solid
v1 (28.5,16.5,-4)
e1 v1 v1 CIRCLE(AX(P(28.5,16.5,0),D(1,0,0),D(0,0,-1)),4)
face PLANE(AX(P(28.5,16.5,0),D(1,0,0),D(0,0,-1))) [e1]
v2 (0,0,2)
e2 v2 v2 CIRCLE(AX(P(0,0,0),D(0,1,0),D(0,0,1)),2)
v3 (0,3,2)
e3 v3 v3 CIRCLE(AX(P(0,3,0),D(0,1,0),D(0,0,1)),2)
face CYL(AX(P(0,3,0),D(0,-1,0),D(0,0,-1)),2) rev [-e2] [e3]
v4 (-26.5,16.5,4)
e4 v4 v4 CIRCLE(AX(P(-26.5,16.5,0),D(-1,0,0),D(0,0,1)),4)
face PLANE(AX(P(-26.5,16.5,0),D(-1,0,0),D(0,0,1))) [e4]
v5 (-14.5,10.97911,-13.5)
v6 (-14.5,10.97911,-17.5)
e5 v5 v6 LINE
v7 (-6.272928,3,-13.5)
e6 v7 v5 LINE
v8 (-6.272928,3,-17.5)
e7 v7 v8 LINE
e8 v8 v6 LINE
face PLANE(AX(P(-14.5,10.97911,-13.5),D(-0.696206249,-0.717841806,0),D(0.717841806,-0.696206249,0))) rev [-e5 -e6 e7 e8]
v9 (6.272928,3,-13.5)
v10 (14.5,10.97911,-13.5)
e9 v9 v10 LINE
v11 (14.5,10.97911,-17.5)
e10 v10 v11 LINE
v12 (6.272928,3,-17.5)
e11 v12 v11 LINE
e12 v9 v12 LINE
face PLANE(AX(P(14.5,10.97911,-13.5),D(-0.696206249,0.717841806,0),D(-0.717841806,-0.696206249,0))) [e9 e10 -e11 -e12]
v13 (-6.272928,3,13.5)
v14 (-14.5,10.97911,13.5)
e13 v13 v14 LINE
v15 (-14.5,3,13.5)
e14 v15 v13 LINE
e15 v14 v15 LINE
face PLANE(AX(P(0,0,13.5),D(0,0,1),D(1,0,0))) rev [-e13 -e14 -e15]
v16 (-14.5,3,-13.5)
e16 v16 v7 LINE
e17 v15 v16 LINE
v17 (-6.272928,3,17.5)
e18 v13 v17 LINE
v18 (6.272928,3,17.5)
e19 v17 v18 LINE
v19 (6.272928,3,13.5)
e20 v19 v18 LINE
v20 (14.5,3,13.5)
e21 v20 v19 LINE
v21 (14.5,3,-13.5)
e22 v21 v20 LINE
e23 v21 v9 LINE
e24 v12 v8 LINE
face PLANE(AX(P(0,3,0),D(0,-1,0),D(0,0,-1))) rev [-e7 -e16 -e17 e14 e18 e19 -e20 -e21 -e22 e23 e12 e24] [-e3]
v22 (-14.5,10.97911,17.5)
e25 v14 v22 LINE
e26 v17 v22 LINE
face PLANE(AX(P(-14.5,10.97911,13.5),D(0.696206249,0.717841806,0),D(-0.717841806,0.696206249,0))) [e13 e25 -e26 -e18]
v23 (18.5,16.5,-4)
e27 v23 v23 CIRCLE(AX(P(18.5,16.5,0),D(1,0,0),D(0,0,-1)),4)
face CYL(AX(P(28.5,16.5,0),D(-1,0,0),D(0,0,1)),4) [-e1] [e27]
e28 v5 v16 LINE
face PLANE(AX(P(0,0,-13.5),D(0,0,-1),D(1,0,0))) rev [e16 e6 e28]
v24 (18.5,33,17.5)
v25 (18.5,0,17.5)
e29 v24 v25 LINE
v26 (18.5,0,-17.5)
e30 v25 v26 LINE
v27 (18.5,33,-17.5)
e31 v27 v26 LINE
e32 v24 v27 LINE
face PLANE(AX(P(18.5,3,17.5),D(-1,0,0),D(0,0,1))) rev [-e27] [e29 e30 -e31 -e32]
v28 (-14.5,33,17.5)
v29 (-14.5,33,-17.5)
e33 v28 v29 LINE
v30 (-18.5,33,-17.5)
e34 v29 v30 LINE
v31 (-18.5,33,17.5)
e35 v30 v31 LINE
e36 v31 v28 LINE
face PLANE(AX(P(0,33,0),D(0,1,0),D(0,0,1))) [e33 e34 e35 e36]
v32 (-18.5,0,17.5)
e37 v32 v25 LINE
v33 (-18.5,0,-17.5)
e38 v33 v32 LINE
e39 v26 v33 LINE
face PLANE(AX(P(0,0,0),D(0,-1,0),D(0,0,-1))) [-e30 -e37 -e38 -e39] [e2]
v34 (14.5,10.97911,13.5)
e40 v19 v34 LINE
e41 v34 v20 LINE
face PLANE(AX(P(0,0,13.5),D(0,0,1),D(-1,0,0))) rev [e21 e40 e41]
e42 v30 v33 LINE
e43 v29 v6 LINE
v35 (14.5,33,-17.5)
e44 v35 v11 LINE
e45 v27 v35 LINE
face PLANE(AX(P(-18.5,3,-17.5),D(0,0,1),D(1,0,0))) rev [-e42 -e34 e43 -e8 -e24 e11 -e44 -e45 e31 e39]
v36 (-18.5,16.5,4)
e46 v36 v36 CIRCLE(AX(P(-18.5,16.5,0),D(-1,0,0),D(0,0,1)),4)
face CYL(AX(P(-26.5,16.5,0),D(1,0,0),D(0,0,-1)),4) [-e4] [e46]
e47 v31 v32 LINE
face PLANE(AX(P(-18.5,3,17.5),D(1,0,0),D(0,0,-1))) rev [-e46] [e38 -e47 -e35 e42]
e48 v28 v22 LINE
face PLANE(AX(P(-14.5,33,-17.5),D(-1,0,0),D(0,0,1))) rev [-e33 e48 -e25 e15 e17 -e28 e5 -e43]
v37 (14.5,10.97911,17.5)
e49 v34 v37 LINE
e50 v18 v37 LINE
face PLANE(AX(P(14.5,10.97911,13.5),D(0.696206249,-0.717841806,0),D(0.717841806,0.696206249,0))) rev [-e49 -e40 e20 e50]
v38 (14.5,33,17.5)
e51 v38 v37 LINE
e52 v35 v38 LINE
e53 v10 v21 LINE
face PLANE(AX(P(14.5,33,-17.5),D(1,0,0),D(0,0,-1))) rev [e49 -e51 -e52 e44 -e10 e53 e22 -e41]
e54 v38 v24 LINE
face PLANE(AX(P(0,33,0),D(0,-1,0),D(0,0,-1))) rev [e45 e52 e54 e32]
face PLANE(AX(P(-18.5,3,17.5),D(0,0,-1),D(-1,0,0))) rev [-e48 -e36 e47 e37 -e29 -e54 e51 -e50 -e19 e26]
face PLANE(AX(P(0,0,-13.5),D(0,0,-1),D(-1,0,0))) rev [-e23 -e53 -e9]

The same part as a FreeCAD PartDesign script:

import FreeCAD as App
import Part
import Sketcher
Q = App.Units.Quantity

doc = App.newDocument("Part")
body = doc.addObject("PartDesign::Body", "Body")

# Sketch on XZ plane
sketch1 = body.newObject("Sketcher::SketchObject", "Sketch")
sketch1.AttachmentSupport = (doc.getObject("XZ_Plane"), [""])
sketch1.MapMode = "FlatFace"
sketch1.addGeometry([
    Part.LineSegment(App.Vector(-18.5, -17.5, 0), App.Vector(-18.5, 17.5, 0)),  # 0
    Part.LineSegment(App.Vector(-18.5, 17.5, 0), App.Vector(18.5, 17.5, 0)),  # 1
    Part.LineSegment(App.Vector(18.5, 17.5, 0), App.Vector(18.5, -17.5, 0)),  # 2
    Part.LineSegment(App.Vector(18.5, -17.5, 0), App.Vector(-18.5, -17.5, 0)),  # 3
    Part.Circle(App.Vector(0, 0, 0), App.Vector(0, 0, 1), 2),  # 4
], False)
sketch1.addConstraint([
    Sketcher.Constraint("Coincident", 0, 2, 1, 1),
    Sketcher.Constraint("Coincident", 1, 2, 2, 1),
    Sketcher.Constraint("Coincident", 2, 2, 3, 1),
    Sketcher.Constraint("Coincident", 3, 2, 0, 1),
    Sketcher.Constraint("Vertical", 0),
    Sketcher.Constraint("Horizontal", 1),
    Sketcher.Constraint("Vertical", 2),
    Sketcher.Constraint("Horizontal", 3),
    Sketcher.Constraint("Coincident", 4, 3, -1, 1),
    Sketcher.Constraint("Symmetric", 0, 2, 2, 2, -1, 1),
    Sketcher.Constraint("Diameter", 4, Q("4 mm")),
    Sketcher.Constraint("DistanceX", 1, 1, 1, 2, Q("37 mm")),
    Sketcher.Constraint("DistanceY", 0, 1, 0, 2, Q("35 mm")),
])
pad1 = body.newObject("PartDesign::Pad", "Pad")
pad1.Profile = sketch1
pad1.Length = 3
pad1.Reversed = True

# Sketch on XZ plane
sketch2 = body.newObject("Sketcher::SketchObject", "Sketch001")
sketch2.AttachmentSupport = (doc.getObject("XZ_Plane"), [""])
sketch2.MapMode = "FlatFace"
sketch2.AttachmentOffset = App.Placement(App.Vector(0, 0, -3), App.Rotation())
sketch2.addGeometry([
    Part.LineSegment(App.Vector(-18.5, -17.5, 0), App.Vector(-18.5, 17.5, 0)),  # 0
    Part.LineSegment(App.Vector(-18.5, 17.5, 0), App.Vector(-14.5, 17.5, 0)),  # 1
    Part.LineSegment(App.Vector(-14.5, 17.5, 0), App.Vector(-14.5, -17.5, 0)),  # 2
    Part.LineSegment(App.Vector(-14.5, -17.5, 0), App.Vector(-18.5, -17.5, 0)),  # 3
    Part.LineSegment(App.Vector(14.5, -17.5, 0), App.Vector(14.5, 17.5, 0)),  # 4
    Part.LineSegment(App.Vector(14.5, 17.5, 0), App.Vector(18.5, 17.5, 0)),  # 5
    Part.LineSegment(App.Vector(18.5, 17.5, 0), App.Vector(18.5, -17.5, 0)),  # 6
    Part.LineSegment(App.Vector(18.5, -17.5, 0), App.Vector(14.5, -17.5, 0)),  # 7
], False)
sketch2.addConstraint([
    Sketcher.Constraint("Coincident", 0, 2, 1, 1),
    Sketcher.Constraint("Coincident", 1, 2, 2, 1),
    Sketcher.Constraint("Coincident", 2, 2, 3, 1),
    Sketcher.Constraint("Coincident", 3, 2, 0, 1),
    Sketcher.Constraint("Coincident", 4, 2, 5, 1),
    Sketcher.Constraint("Coincident", 5, 2, 6, 1),
    Sketcher.Constraint("Coincident", 6, 2, 7, 1),
    Sketcher.Constraint("Coincident", 7, 2, 4, 1),
    Sketcher.Constraint("Vertical", 0),
    Sketcher.Constraint("Horizontal", 1),
    Sketcher.Constraint("Vertical", 2),
    Sketcher.Constraint("Horizontal", 3),
    Sketcher.Constraint("Vertical", 4),
    Sketcher.Constraint("Horizontal", 5),
    Sketcher.Constraint("Vertical", 6),
    Sketcher.Constraint("Horizontal", 7),
    Sketcher.Constraint("Symmetric", 2, 2, 4, 2, -1, 1),
    Sketcher.Constraint("Symmetric", 0, 2, 6, 2, -1, 1),
    Sketcher.Constraint("Horizontal", 1, 2, 4, 2),
    Sketcher.Constraint("DistanceX", 1, 1, 1, 2, Q("4 mm")),
    Sketcher.Constraint("DistanceY", 0, 1, 0, 2, Q("35 mm")),
    Sketcher.Constraint("DistanceX", 1, 2, 4, 2, Q("29 mm")),
])
pad2 = body.newObject("PartDesign::Pad", "Pad001")
pad2.Profile = sketch2
pad2.Length = 30
pad2.Reversed = True

# Sketch on YZ plane
sketch3 = body.newObject("Sketcher::SketchObject", "Sketch002")
sketch3.AttachmentSupport = (doc.getObject("YZ_Plane"), [""])
sketch3.MapMode = "FlatFace"
sketch3.AttachmentOffset = App.Placement(App.Vector(0, 0, -18.5), App.Rotation())
sketch3.addGeometry(Part.Circle(App.Vector(16.5, 0, 0), App.Vector(0, 0, 1), 4), False)
sketch3.addConstraint([
    Sketcher.Constraint("PointOnObject", 0, 3, -1),
    Sketcher.Constraint("Diameter", 0, Q("8 mm")),
    Sketcher.Constraint("DistanceX", -1, 1, 0, 3, Q("16.5 mm")),
])
pad3 = body.newObject("PartDesign::Pad", "Pad002")
pad3.Profile = sketch3
pad3.Length = 8
pad3.Reversed = True

# Sketch on YZ plane
sketch4 = body.newObject("Sketcher::SketchObject", "Sketch003")
sketch4.AttachmentSupport = (doc.getObject("YZ_Plane"), [""])
sketch4.MapMode = "FlatFace"
sketch4.AttachmentOffset = App.Placement(App.Vector(0, 0, 28.5), App.Rotation())
sketch4.addGeometry(Part.Circle(App.Vector(16.5, 0, 0), App.Vector(0, 0, 1), 4), False)
sketch4.addConstraint([
    Sketcher.Constraint("PointOnObject", 0, 3, -1),
    Sketcher.Constraint("Diameter", 0, Q("8 mm")),
    Sketcher.Constraint("DistanceX", -1, 1, 0, 3, Q("16.5 mm")),
])
pad4 = body.newObject("PartDesign::Pad", "Pad003")
pad4.Profile = sketch4
pad4.Length = 10
pad4.Reversed = True

# Sketch on XY plane
sketch5 = body.newObject("Sketcher::SketchObject", "Sketch004")
sketch5.AttachmentSupport = (doc.getObject("XY_Plane"), [""])
sketch5.MapMode = "FlatFace"
sketch5.AttachmentOffset = App.Placement(App.Vector(0, 0, 17.5), App.Rotation())
sketch5.addGeometry([
    Part.LineSegment(App.Vector(-6, 3, 0), App.Vector(-14, 11, 0)),
    Part.LineSegment(App.Vector(-14, 11, 0), App.Vector(-14, 3, 0)),
    Part.LineSegment(App.Vector(-14, 3, 0), App.Vector(-6, 3, 0)),
], False)
sketch5.addConstraint([
    Sketcher.Constraint("Coincident", 0, 2, 1, 1),
    Sketcher.Constraint("Coincident", 1, 2, 2, 1),
    Sketcher.Constraint("Coincident", 2, 2, 0, 1),
    Sketcher.Constraint("Vertical", 1),
    Sketcher.Constraint("Horizontal", 2),
    Sketcher.Constraint("DistanceY", -1, 1, 1, 2, Q("3 mm")),
    Sketcher.Constraint("DistanceX", 0, 2, -1, 1, Q("14.5 mm")),
    Sketcher.Constraint("DistanceY", 1, 2, 1, 1, Q("7.97911 mm")),
    Sketcher.Constraint("DistanceX", 2, 1, 2, 2, Q("8.227072 mm")),
])
pad5 = body.newObject("PartDesign::Pad", "Pad004")
pad5.Profile = sketch5
pad5.Length = 4
pad5.Reversed = True
doc.recompute()

mirrored = body.newObject("PartDesign::Mirrored", "Mirrored")
mirrored.Originals = [pad5]
mirrored.MirrorPlane = (doc.getObject("YZ_Plane"), [""])
body.Tip = mirrored
doc.recompute()

mirrored2 = body.newObject("PartDesign::Mirrored", "Mirrored001")
mirrored2.Originals = [pad5]
mirrored2.MirrorPlane = (doc.getObject("XY_Plane"), [""])
body.Tip = mirrored2

# Sketch on XY plane
sketch6 = body.newObject("Sketcher::SketchObject", "Sketch005")
sketch6.AttachmentSupport = (doc.getObject("XY_Plane"), [""])
sketch6.MapMode = "FlatFace"
sketch6.AttachmentOffset = App.Placement(App.Vector(0, 0, -17.5), App.Rotation())
sketch6.addGeometry([
    Part.LineSegment(App.Vector(6, 3, 0), App.Vector(14, 11, 0)),
    Part.LineSegment(App.Vector(14, 11, 0), App.Vector(14, 3, 0)),
    Part.LineSegment(App.Vector(14, 3, 0), App.Vector(6, 3, 0)),
], False)
sketch6.addConstraint([
    Sketcher.Constraint("Coincident", 0, 2, 1, 1),
    Sketcher.Constraint("Coincident", 1, 2, 2, 1),
    Sketcher.Constraint("Coincident", 2, 2, 0, 1),
    Sketcher.Constraint("Vertical", 1),
    Sketcher.Constraint("Horizontal", 2),
    Sketcher.Constraint("DistanceY", -1, 1, 1, 2, Q("3 mm")),
    Sketcher.Constraint("DistanceX", -1, 1, 0, 2, Q("14.5 mm")),
    Sketcher.Constraint("DistanceY", 1, 2, 1, 1, Q("7.97911 mm")),
    Sketcher.Constraint("DistanceX", 2, 2, 2, 1, Q("8.227072 mm")),
])
pad6 = body.newObject("PartDesign::Pad", "Pad005")
pad6.Profile = sketch6
pad6.Length = 4

doc.recompute()
